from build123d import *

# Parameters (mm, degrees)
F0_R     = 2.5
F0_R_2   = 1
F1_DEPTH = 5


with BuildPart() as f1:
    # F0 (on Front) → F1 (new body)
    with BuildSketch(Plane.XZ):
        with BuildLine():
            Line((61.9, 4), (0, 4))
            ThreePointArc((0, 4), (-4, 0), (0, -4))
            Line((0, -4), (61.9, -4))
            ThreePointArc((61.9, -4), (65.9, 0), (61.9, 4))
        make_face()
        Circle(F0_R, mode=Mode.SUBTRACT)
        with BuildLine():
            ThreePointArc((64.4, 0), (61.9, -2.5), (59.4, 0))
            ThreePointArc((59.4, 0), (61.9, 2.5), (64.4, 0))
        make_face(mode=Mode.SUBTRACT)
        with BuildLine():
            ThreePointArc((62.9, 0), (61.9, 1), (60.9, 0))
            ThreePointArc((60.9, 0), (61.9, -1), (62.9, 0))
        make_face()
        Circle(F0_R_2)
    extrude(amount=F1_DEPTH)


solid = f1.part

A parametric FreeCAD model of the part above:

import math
import FreeCAD as App
import Part
import Sketcher
from FreeCAD import Vector

doc = App.newDocument("Part")
body = doc.addObject("PartDesign::Body", "Body")
body.AllowCompound = True

# Sketch on XZ plane
sketch1 = doc.addObject("Sketcher::SketchObject", "Sketch")
body.addObject(sketch1)
sketch1.AttachmentSupport = (doc.XZ_Plane, [""])
sketch1.MapMode = "FlatFace"
sketch1.addGeometry(Part.LineSegment(Vector(61.9, 4, 0), Vector(0, 4, 0)), False)
sketch1.addGeometry(Part.ArcOfCircle(Part.Circle(Vector(0, 0, 0), Vector(0, 0, 1), 4), math.radians(90), math.radians(270)), False)
sketch1.addGeometry(Part.LineSegment(Vector(0, -4, 0), Vector(61.9, -4, 0)), False)
sketch1.addGeometry(Part.ArcOfCircle(Part.Circle(Vector(61.9, 0, 0), Vector(0, 0, 1), 4), math.radians(-90), math.radians(90)), False)
sketch1.addGeometry(Part.Circle(Vector(0, 0, 0), Vector(0, 0, 1), 2.5), False)
sketch1.addGeometry(Part.Circle(Vector(61.9, 0, 0), Vector(0, 0, 1), 2.5), False)
sketch1.addGeometry(Part.Circle(Vector(61.9, 0, 0), Vector(0, 0, 1), 1), False)
sketch1.addGeometry(Part.Circle(Vector(0, 0, 0), Vector(0, 0, 1), 1), False)
sketch1.addConstraint(Sketcher.Constraint("Tangent", 0, 2, 1, 1))
sketch1.addConstraint(Sketcher.Constraint("Tangent", 1, 2, 2, 1))
sketch1.addConstraint(Sketcher.Constraint("Tangent", 2, 2, 3, 1))
sketch1.addConstraint(Sketcher.Constraint("Tangent", 3, 2, 0, 1))
sketch1.addConstraint(Sketcher.Constraint("Horizontal", 0))
sketch1.addConstraint(Sketcher.Constraint("Horizontal", 2))
sketch1.addConstraint(Sketcher.Constraint("Coincident", 1, 3, -1, 1))
sketch1.addConstraint(Sketcher.Constraint("Coincident", 4, 3, -1, 1))
sketch1.addConstraint(Sketcher.Constraint("Coincident", 7, 3, -1, 1))
sketch1.addConstraint(Sketcher.Constraint("Coincident", 5, 3, 3, 3))
sketch1.addConstraint(Sketcher.Constraint("Coincident", 6, 3, 3, 3))
sketch1.addConstraint(Sketcher.Constraint("Equal", 4, 5))
sketch1.addConstraint(Sketcher.Constraint("Equal", 6, 7))
sketch1.addConstraint(Sketcher.Constraint("Diameter", 4, 5.0))
sketch1.addConstraint(Sketcher.Constraint("Diameter", 6, 2.0))
sketch1.addConstraint(Sketcher.Constraint("Radius", 1, 4.0))
sketch1.addConstraint(Sketcher.Constraint("DistanceX", 0, 2, 0, 1, 61.9))
pad1 = doc.addObject("PartDesign::Pad", "Pad")
body.addObject(pad1)
pad1.Profile = sketch1
pad1.Length = 5

doc.recompute()
